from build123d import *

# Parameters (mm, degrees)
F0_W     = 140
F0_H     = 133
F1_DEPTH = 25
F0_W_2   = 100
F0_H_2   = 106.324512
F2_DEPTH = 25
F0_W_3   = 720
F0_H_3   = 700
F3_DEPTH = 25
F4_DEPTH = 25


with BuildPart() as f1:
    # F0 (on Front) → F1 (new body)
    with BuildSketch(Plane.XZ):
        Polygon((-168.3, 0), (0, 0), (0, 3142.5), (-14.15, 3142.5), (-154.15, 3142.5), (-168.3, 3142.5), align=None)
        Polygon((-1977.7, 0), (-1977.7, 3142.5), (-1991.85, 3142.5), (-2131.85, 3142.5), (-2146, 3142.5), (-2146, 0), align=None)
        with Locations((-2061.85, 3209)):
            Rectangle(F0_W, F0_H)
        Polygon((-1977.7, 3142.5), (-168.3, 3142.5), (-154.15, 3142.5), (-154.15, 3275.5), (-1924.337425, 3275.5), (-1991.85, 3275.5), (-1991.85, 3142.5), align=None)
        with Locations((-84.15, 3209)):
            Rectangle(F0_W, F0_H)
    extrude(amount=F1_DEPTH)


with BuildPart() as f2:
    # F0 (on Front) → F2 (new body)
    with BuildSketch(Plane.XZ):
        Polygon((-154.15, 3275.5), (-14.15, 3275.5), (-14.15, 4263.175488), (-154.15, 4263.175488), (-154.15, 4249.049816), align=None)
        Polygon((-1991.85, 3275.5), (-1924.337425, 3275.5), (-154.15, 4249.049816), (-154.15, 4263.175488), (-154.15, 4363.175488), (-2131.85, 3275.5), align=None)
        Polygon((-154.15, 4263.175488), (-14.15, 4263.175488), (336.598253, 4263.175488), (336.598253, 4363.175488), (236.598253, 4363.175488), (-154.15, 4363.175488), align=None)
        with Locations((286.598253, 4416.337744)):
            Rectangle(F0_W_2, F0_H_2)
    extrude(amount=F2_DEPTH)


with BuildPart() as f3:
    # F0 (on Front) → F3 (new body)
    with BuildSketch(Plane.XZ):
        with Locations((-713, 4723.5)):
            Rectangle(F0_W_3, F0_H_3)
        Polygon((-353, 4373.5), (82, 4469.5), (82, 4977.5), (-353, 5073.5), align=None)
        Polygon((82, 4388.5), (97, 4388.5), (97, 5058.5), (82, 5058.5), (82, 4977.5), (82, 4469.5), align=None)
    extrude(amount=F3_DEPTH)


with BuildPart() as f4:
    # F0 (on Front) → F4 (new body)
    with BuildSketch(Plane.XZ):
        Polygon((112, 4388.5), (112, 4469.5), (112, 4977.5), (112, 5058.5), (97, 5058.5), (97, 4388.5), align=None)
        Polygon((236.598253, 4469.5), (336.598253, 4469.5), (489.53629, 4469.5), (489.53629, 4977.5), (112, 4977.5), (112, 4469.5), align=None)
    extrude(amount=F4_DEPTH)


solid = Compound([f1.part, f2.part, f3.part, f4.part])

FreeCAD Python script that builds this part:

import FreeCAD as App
import Part
import Sketcher

doc = App.newDocument("Part")
body = doc.addObject("PartDesign::Body", "Body")

# Sketch on XZ plane
sketch1 = body.newObject("Sketcher::SketchObject", "Sketch")
sketch1.AttachmentSupport = (doc.getObject("XZ_Plane"), [""])
sketch1.MapMode = "FlatFace"
sketch1.addGeometry(Part.LineSegment(App.Vector(-168, 0, 0), App.Vector(0, 0, 0)), False)
sketch1.addGeometry(Part.LineSegment(App.Vector(0, 0, 0), App.Vector(0, 3142, 0)), False)
sketch1.addGeometry(Part.LineSegment(App.Vector(0, 3142, 0), App.Vector(-14, 3142, 0)), False)
sketch1.addGeometry(Part.LineSegment(App.Vector(-14, 3142, 0), App.Vector(-14, 3276, 0)), False)
sketch1.addGeometry(Part.LineSegment(App.Vector(-14, 3276, 0), App.Vector(-2132, 3276, 0)), False)
sketch1.addGeometry(Part.LineSegment(App.Vector(-2132, 3276, 0), App.Vector(-2132, 3142, 0)), False)
sketch1.addGeometry(Part.LineSegment(App.Vector(-2132, 3142, 0), App.Vector(-2146, 3142, 0)), False)
sketch1.addGeometry(Part.LineSegment(App.Vector(-2146, 3142, 0), App.Vector(-2146, 0, 0)), False)
sketch1.addGeometry(Part.LineSegment(App.Vector(-2146, 0, 0), App.Vector(-1978, 0, 0)), False)
sketch1.addGeometry(Part.LineSegment(App.Vector(-1978, 0, 0), App.Vector(-1978, 3142, 0)), False)
sketch1.addGeometry(Part.LineSegment(App.Vector(-1978, 3142, 0), App.Vector(-168, 3142, 0)), False)
sketch1.addGeometry(Part.LineSegment(App.Vector(-168, 3142, 0), App.Vector(-168, 0, 0)), False)
sketch1.addConstraint(Sketcher.Constraint("Coincident", 0, 2, 1, 1))
sketch1.addConstraint(Sketcher.Constraint("Coincident", 1, 2, 2, 1))
sketch1.addConstraint(Sketcher.Constraint("Coincident", 2, 2, 3, 1))
sketch1.addConstraint(Sketcher.Constraint("Coincident", 3, 2, 4, 1))
sketch1.addConstraint(Sketcher.Constraint("Coincident", 4, 2, 5, 1))
sketch1.addConstraint(Sketcher.Constraint("Coincident", 5, 2, 6, 1))
sketch1.addConstraint(Sketcher.Constraint("Coincident", 6, 2, 7, 1))
sketch1.addConstraint(Sketcher.Constraint("Coincident", 7, 2, 8, 1))
sketch1.addConstraint(Sketcher.Constraint("Coincident", 8, 2, 9, 1))
sketch1.addConstraint(Sketcher.Constraint("Coincident", 9, 2, 10, 1))
sketch1.addConstraint(Sketcher.Constraint("Coincident", 10, 2, 11, 1))
sketch1.addConstraint(Sketcher.Constraint("Coincident", 11, 2, 0, 1))
sketch1.addConstraint(Sketcher.Constraint("Horizontal", 0))
sketch1.addConstraint(Sketcher.Constraint("Vertical", 1))
sketch1.addConstraint(Sketcher.Constraint("Horizontal", 2))
sketch1.addConstraint(Sketcher.Constraint("Vertical", 3))
sketch1.addConstraint(Sketcher.Constraint("Horizontal", 4))
sketch1.addConstraint(Sketcher.Constraint("Vertical", 5))
sketch1.addConstraint(Sketcher.Constraint("Horizontal", 6))
sketch1.addConstraint(Sketcher.Constraint("Vertical", 7))
sketch1.addConstraint(Sketcher.Constraint("Horizontal", 8))
sketch1.addConstraint(Sketcher.Constraint("Vertical", 9))
sketch1.addConstraint(Sketcher.Constraint("Horizontal", 10))
sketch1.addConstraint(Sketcher.Constraint("Vertical", 11))
sketch1.addConstraint(Sketcher.Constraint("Coincident", 0, 2, -1, 1))
sketch1.addConstraint(Sketcher.Constraint("PointOnObject", 7, 2, -1))
sketch1.addConstraint(Sketcher.Constraint("Horizontal", 2, 2, 5, 2))
sketch1.addConstraint(Sketcher.Constraint("Horizontal", 6, 2, 9, 2))
sketch1.addConstraint(Sketcher.Constraint("Equal", 2, 6))
sketch1.addConstraint(Sketcher.Constraint("Equal", 0, 8))
sketch1.addConstraint(Sketcher.Constraint("DistanceY", 3, 1, 3, 2, 133.0))
sketch1.addConstraint(Sketcher.Constraint("DistanceX", 0, 1, 0, 2, 168.3))
sketch1.addConstraint(Sketcher.Constraint("DistanceX", 4, 2, 4, 1, 2117.7))
sketch1.addConstraint(Sketcher.Constraint("DistanceX", 10, 1, 10, 2, 1809.4))
sketch1.addConstraint(Sketcher.Constraint("DistanceY", 1, 1, 1, 2, 3142.5))
pad1 = body.newObject("PartDesign::Pad", "Pad")
pad1.Profile = sketch1
pad1.Length = 25
body2 = doc.addObject("PartDesign::Body", "Body001")

# Sketch on XZ plane
sketch2 = body2.newObject("Sketcher::SketchObject", "Sketch001")
sketch2.AttachmentSupport = (doc.getObject("XZ_Plane001"), [""])
sketch2.MapMode = "FlatFace"
sketch2.addGeometry(Part.LineSegment(App.Vector(-154, 3276, 0), App.Vector(-14, 3276, 0)), False)
sketch2.addGeometry(Part.LineSegment(App.Vector(-14, 3276, 0), App.Vector(-14, 4263, 0)), False)
sketch2.addGeometry(Part.LineSegment(App.Vector(-14, 4263, 0), App.Vector(337, 4263, 0)), False)
sketch2.addGeometry(Part.LineSegment(App.Vector(337, 4263, 0), App.Vector(337, 4470, 0)), False)
sketch2.addGeometry(Part.LineSegment(App.Vector(337, 4470, 0), App.Vector(237, 4470, 0)), False)
sketch2.addGeometry(Part.LineSegment(App.Vector(237, 4470, 0), App.Vector(237, 4363, 0)), False)
sketch2.addGeometry(Part.LineSegment(App.Vector(237, 4363, 0), App.Vector(-154, 4363, 0)), False)
sketch2.addGeometry(Part.LineSegment(App.Vector(-154, 4363, 0), App.Vector(-2132, 3276, 0)), False)
sketch2.addGeometry(Part.LineSegment(App.Vector(-2132, 3276, 0), App.Vector(-1924, 3276, 0)), False)
sketch2.addGeometry(Part.LineSegment(App.Vector(-1924, 3276, 0), App.Vector(-154, 4249, 0)), False)
sketch2.addGeometry(Part.LineSegment(App.Vector(-154, 4249, 0), App.Vector(-154, 3276, 0)), False)
sketch2.addConstraint(Sketcher.Constraint("Coincident", 0, 2, 1, 1))
sketch2.addConstraint(Sketcher.Constraint("Coincident", 1, 2, 2, 1))
sketch2.addConstraint(Sketcher.Constraint("Coincident", 2, 2, 3, 1))
sketch2.addConstraint(Sketcher.Constraint("Coincident", 3, 2, 4, 1))
sketch2.addConstraint(Sketcher.Constraint("Coincident", 4, 2, 5, 1))
sketch2.addConstraint(Sketcher.Constraint("Coincident", 5, 2, 6, 1))
sketch2.addConstraint(Sketcher.Constraint("Coincident", 6, 2, 7, 1))
sketch2.addConstraint(Sketcher.Constraint("Coincident", 7, 2, 8, 1))
sketch2.addConstraint(Sketcher.Constraint("Coincident", 8, 2, 9, 1))
sketch2.addConstraint(Sketcher.Constraint("Coincident", 9, 2, 10, 1))
sketch2.addConstraint(Sketcher.Constraint("Coincident", 10, 2, 0, 1))
sketch2.addConstraint(Sketcher.Constraint("Horizontal", 0))
sketch2.addConstraint(Sketcher.Constraint("Vertical", 1))
sketch2.addConstraint(Sketcher.Constraint("Horizontal", 2))
sketch2.addConstraint(Sketcher.Constraint("Vertical", 3))
sketch2.addConstraint(Sketcher.Constraint("Horizontal", 4))
sketch2.addConstraint(Sketcher.Constraint("Vertical", 5))
sketch2.addConstraint(Sketcher.Constraint("Horizontal", 6))
sketch2.addConstraint(Sketcher.Constraint("Horizontal", 8))
sketch2.addConstraint(Sketcher.Constraint("Vertical", 10))
sketch2.addConstraint(Sketcher.Constraint("Parallel", 7, 9))
sketch2.addConstraint(Sketcher.Constraint("Horizontal", 0, 2, 7, 2))
sketch2.addConstraint(Sketcher.Constraint("Vertical", 6, 2, 9, 2))
sketch2.addConstraint(Sketcher.Constraint("DistanceX", 0, 1, 0, 2, 140.0))
sketch2.addConstraint(Sketcher.Constraint("DistanceX", 4, 2, 4, 1, 100.0))
sketch2.addConstraint(Sketcher.Constraint("DistanceY", 0, 2, 3, 2, 1194.0))
sketch2.addConstraint(Sketcher.Constraint("DistanceY", 2, 2, 5, 2, 100.0))
sketch2.addConstraint(Sketcher.Constraint("DistanceY", -1, 1, 0, 2, 3275.5))
sketch2.addConstraint(Sketcher.Constraint("DistanceX", 7, 2, 0, 2, 2117.7))
sketch2.addConstraint(Sketcher.Constraint("DistanceX", 0, 2, -1, 1, 14.15))
sketch2.addConstraint(Sketcher.Constraint("DistanceX", 2, 1, 2, 2, 350.748253))
sketch2.addConstraint(Sketcher.Constraint("DistanceX", 8, 1, 8, 2, 207.512575))
sketch2.addConstraint(Sketcher.Constraint("DistanceY", 1, 1, 1, 2, 987.675488))
pad2 = body2.newObject("PartDesign::Pad", "Pad001")
pad2.Profile = sketch2
pad2.Length = 25
body3 = doc.addObject("PartDesign::Body", "Body002")

# Sketch on XZ plane
sketch3 = body3.newObject("Sketcher::SketchObject", "Sketch002")
sketch3.AttachmentSupport = (doc.getObject("XZ_Plane002"), [""])
sketch3.MapMode = "FlatFace"
sketch3.addGeometry(Part.LineSegment(App.Vector(-1073, 5074, 0), App.Vector(-1073, 4374, 0)), False)
sketch3.addGeometry(Part.LineSegment(App.Vector(-1073, 4374, 0), App.Vector(-353, 4374, 0)), False)
sketch3.addGeometry(Part.LineSegment(App.Vector(-353, 4374, 0), App.Vector(82, 4470, 0)), False)
sketch3.addGeometry(Part.LineSegment(App.Vector(82, 4470, 0), App.Vector(82, 4388, 0)), False)
sketch3.addGeometry(Part.LineSegment(App.Vector(82, 4388, 0), App.Vector(97, 4388, 0)), False)
sketch3.addGeometry(Part.LineSegment(App.Vector(97, 4388, 0), App.Vector(97, 5058, 0)), False)
sketch3.addGeometry(Part.LineSegment(App.Vector(97, 5058, 0), App.Vector(82, 5058, 0)), False)
sketch3.addGeometry(Part.LineSegment(App.Vector(82, 5058, 0), App.Vector(82, 4978, 0)), False)
sketch3.addGeometry(Part.LineSegment(App.Vector(82, 4978, 0), App.Vector(-353, 5074, 0)), False)
sketch3.addGeometry(Part.LineSegment(App.Vector(-353, 5074, 0), App.Vector(-1073, 5074, 0)), False)
sketch3.addConstraint(Sketcher.Constraint("Coincident", 0, 2, 1, 1))
sketch3.addConstraint(Sketcher.Constraint("Coincident", 1, 2, 2, 1))
sketch3.addConstraint(Sketcher.Constraint("Coincident", 2, 2, 3, 1))
sketch3.addConstraint(Sketcher.Constraint("Coincident", 3, 2, 4, 1))
sketch3.addConstraint(Sketcher.Constraint("Coincident", 4, 2, 5, 1))
sketch3.addConstraint(Sketcher.Constraint("Coincident", 5, 2, 6, 1))
sketch3.addConstraint(Sketcher.Constraint("Coincident", 6, 2, 7, 1))
sketch3.addConstraint(Sketcher.Constraint("Coincident", 7, 2, 8, 1))
sketch3.addConstraint(Sketcher.Constraint("Coincident", 8, 2, 9, 1))
sketch3.addConstraint(Sketcher.Constraint("Coincident", 9, 2, 0, 1))
sketch3.addConstraint(Sketcher.Constraint("Vertical", 0))
sketch3.addConstraint(Sketcher.Constraint("Horizontal", 1))
sketch3.addConstraint(Sketcher.Constraint("Vertical", 3))
sketch3.addConstraint(Sketcher.Constraint("Horizontal", 4))
sketch3.addConstraint(Sketcher.Constraint("Vertical", 5))
sketch3.addConstraint(Sketcher.Constraint("Horizontal", 6))
sketch3.addConstraint(Sketcher.Constraint("Vertical", 7))
sketch3.addConstraint(Sketcher.Constraint("Horizontal", 9))
sketch3.addConstraint(Sketcher.Constraint("Vertical", 3, 2, 6, 2))
sketch3.addConstraint(Sketcher.Constraint("Vertical", 1, 2, 8, 2))
sketch3.addConstraint(Sketcher.Constraint("Equal", 3, 7))
sketch3.addConstraint(Sketcher.Constraint("Equal", 2, 8))
sketch3.addConstraint(Sketcher.Constraint("DistanceX", 1, 1, 1, 2, 720.0))
sketch3.addConstraint(Sketcher.Constraint("DistanceX", 4, 1, 4, 2, 15.0))
sketch3.addConstraint(Sketcher.Constraint("DistanceY", 0, 2, 0, 1, 700.0))
sketch3.addConstraint(Sketcher.Constraint("DistanceY", 3, 2, 3, 1, 81.0))
sketch3.addConstraint(Sketcher.Constraint("DistanceY", 5, 1, 5, 2, 670.0))
sketch3.addConstraint(Sketcher.Constraint("DistanceX", 0, 2, -1, 1, 1073.0))
sketch3.addConstraint(Sketcher.Constraint("DistanceX", -1, 1, 2, 2, 82.0))
sketch3.addConstraint(Sketcher.Constraint("DistanceY", -1, 1, 0, 2, 4373.5))
pad3 = body3.newObject("PartDesign::Pad", "Pad002")
pad3.Profile = sketch3
pad3.Length = 25
body4 = doc.addObject("PartDesign::Body", "Body003")

# Sketch on XZ plane
sketch4 = body4.newObject("Sketcher::SketchObject", "Sketch003")
sketch4.AttachmentSupport = (doc.getObject("XZ_Plane003"), [""])
sketch4.MapMode = "FlatFace"
sketch4.addGeometry(Part.LineSegment(App.Vector(112, 4388, 0), App.Vector(112, 4470, 0)), False)
sketch4.addGeometry(Part.LineSegment(App.Vector(112, 4470, 0), App.Vector(490, 4470, 0)), False)
sketch4.addGeometry(Part.LineSegment(App.Vector(490, 4470, 0), App.Vector(490, 4978, 0)), False)
sketch4.addGeometry(Part.LineSegment(App.Vector(490, 4978, 0), App.Vector(112, 4978, 0)), False)
sketch4.addGeometry(Part.LineSegment(App.Vector(112, 4978, 0), App.Vector(112, 5058, 0)), False)
sketch4.addGeometry(Part.LineSegment(App.Vector(112, 5058, 0), App.Vector(97, 5058, 0)), False)
sketch4.addGeometry(Part.LineSegment(App.Vector(97, 5058, 0), App.Vector(97, 4388, 0)), False)
sketch4.addGeometry(Part.LineSegment(App.Vector(97, 4388, 0), App.Vector(112, 4388, 0)), False)
sketch4.addConstraint(Sketcher.Constraint("Coincident", 0, 2, 1, 1))
sketch4.addConstraint(Sketcher.Constraint("Coincident", 1, 2, 2, 1))
sketch4.addConstraint(Sketcher.Constraint("Coincident", 2, 2, 3, 1))
sketch4.addConstraint(Sketcher.Constraint("Coincident", 3, 2, 4, 1))
sketch4.addConstraint(Sketcher.Constraint("Coincident", 4, 2, 5, 1))
sketch4.addConstraint(Sketcher.Constraint("Coincident", 5, 2, 6, 1))
sketch4.addConstraint(Sketcher.Constraint("Coincident", 6, 2, 7, 1))
sketch4.addConstraint(Sketcher.Constraint("Coincident", 7, 2, 0, 1))
sketch4.addConstraint(Sketcher.Constraint("Vertical", 0))
sketch4.addConstraint(Sketcher.Constraint("Horizontal", 1))
sketch4.addConstraint(Sketcher.Constraint("Vertical", 2))
sketch4.addConstraint(Sketcher.Constraint("Horizontal", 3))
sketch4.addConstraint(Sketcher.Constraint("Vertical", 4))
sketch4.addConstraint(Sketcher.Constraint("Horizontal", 5))
sketch4.addConstraint(Sketcher.Constraint("Vertical", 6))
sketch4.addConstraint(Sketcher.Constraint("Horizontal", 7))
sketch4.addConstraint(Sketcher.Constraint("Vertical", 0, 2, 3, 2))
sketch4.addConstraint(Sketcher.Constraint("Equal", 0, 4))
sketch4.addConstraint(Sketcher.Constraint("DistanceX", 5, 2, 5, 1, 15.0))
sketch4.addConstraint(Sketcher.Constraint("DistanceY", 0, 1, 0, 2, 81.0))
sketch4.addConstraint(Sketcher.Constraint("DistanceY", 2, 1, 2, 2, 508.0))
sketch4.addConstraint(Sketcher.Constraint("DistanceX", -1, 1, 0, 2, 112.0))
sketch4.addConstraint(Sketcher.Constraint("DistanceY", -1, 1, 0, 2, 4469.5))
sketch4.addConstraint(Sketcher.Constraint("DistanceX", 1, 1, 1, 2, 377.53629))
pad4 = body4.newObject("PartDesign::Pad", "Pad003")
pad4.Profile = sketch4
pad4.Length = 25

doc.recompute()
